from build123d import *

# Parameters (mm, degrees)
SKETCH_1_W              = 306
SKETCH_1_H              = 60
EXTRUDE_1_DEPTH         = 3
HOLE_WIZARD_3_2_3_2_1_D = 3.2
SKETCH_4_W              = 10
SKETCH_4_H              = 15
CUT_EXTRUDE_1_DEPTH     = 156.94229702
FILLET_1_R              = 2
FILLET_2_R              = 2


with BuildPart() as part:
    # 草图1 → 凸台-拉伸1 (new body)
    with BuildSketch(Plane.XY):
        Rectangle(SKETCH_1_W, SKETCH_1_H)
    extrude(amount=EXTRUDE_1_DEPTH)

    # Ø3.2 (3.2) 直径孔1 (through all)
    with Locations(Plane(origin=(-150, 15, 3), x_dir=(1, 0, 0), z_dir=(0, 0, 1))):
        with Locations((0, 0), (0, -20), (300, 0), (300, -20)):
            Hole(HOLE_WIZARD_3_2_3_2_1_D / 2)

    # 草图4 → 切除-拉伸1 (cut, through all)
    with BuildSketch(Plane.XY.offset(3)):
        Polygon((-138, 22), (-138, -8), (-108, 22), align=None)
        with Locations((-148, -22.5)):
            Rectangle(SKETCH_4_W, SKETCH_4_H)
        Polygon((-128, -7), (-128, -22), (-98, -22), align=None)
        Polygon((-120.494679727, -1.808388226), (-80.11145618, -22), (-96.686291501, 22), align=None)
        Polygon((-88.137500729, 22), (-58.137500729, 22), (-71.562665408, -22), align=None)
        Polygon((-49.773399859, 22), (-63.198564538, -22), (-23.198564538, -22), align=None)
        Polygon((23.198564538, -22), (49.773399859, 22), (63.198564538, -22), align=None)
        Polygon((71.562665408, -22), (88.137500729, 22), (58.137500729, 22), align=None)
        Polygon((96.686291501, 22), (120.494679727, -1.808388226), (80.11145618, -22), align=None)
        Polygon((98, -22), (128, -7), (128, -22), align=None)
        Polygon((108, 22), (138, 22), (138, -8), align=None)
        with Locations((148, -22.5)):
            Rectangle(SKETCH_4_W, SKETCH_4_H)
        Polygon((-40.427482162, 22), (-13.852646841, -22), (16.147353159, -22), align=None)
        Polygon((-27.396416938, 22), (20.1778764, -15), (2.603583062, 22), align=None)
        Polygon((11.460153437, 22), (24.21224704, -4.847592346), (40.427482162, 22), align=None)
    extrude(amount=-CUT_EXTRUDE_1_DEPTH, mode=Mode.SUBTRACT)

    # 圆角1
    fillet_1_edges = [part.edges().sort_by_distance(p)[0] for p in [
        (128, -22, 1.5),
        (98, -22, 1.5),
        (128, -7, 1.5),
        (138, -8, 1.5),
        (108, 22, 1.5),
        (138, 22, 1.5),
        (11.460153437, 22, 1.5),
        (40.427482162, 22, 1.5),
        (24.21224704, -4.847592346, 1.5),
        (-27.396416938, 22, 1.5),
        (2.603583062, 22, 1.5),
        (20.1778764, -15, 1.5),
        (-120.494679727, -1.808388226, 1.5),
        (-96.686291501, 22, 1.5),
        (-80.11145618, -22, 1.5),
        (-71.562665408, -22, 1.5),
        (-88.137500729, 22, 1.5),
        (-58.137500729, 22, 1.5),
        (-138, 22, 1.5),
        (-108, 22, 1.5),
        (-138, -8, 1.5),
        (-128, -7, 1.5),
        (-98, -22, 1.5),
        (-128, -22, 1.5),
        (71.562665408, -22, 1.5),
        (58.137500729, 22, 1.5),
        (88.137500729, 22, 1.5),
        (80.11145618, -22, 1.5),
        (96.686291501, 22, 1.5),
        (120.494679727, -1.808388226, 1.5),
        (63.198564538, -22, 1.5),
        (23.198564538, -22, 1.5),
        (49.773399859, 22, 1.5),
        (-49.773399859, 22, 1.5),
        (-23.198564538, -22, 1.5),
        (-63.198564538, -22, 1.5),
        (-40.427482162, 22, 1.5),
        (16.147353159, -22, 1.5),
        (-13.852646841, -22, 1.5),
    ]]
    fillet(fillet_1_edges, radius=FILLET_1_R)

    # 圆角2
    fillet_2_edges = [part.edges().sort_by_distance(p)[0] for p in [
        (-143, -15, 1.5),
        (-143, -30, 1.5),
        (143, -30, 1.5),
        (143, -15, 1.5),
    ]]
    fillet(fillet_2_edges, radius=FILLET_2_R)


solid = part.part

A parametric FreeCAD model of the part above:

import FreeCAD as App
import Part
import Sketcher

V = App.Vector
Q = App.Units.Quantity


def edges_at(feature, points):
    """Names of the edges that pass closest to the given points."""
    edges = feature.Shape.Edges
    near = lambda p: min(range(len(edges)), key=lambda i: edges[i].distToShape(Part.Vertex(*p))[0])
    return sorted({f"Edge{near(p) + 1}" for p in points})

doc = App.newDocument("Part")
body = doc.addObject("PartDesign::Body", "Body")

sketch1 = body.newObject("Sketcher::SketchObject", "Sketch")
sketch1.AttachmentSupport = (doc.getObject("XY_Plane"), [""])
sketch1.MapMode = "FlatFace"
sketch1.addGeometry([
    Part.LineSegment(V(-153, 30, 0), V(-153, -30, 0)),
    Part.LineSegment(V(-153, -30, 0), V(153, -30, 0)),
    Part.LineSegment(V(153, -30, 0), V(153, 30, 0)),
    Part.LineSegment(V(153, 30, 0), V(-153, 30, 0)),
], False)
sketch1.addConstraint([
    Sketcher.Constraint("Coincident", 0, 2, 1, 1),
    Sketcher.Constraint("Coincident", 1, 2, 2, 1),
    Sketcher.Constraint("Coincident", 2, 2, 3, 1),
    Sketcher.Constraint("Coincident", 3, 2, 0, 1),
    Sketcher.Constraint("Vertical", 0),
    Sketcher.Constraint("Horizontal", 1),
    Sketcher.Constraint("Vertical", 2),
    Sketcher.Constraint("Horizontal", 3),
    Sketcher.Constraint("Symmetric", 0, 2, 2, 2, -1, 1),
    Sketcher.Constraint("DistanceX", 1, 1, 1, 2, Q("306 mm")),
    Sketcher.Constraint("DistanceY", 0, 2, 0, 1, Q("60 mm")),
])
pad1 = body.newObject("PartDesign::Pad", "Pad")
pad1.Profile = sketch1
pad1.Length = 3

sketch2 = body.newObject("Sketcher::SketchObject", "Sketch001")
sketch2.AttachmentSupport = (doc.getObject("XY_Plane"), [""])
sketch2.MapMode = "FlatFace"
sketch2.AttachmentOffset = App.Placement(V(0, 0, 3), App.Rotation())
sketch2.addGeometry([
    Part.Circle(V(-150, 15, 0), V(0, 0, 1), 1.6),
    Part.Circle(V(-150, -5, 0), V(0, 0, 1), 1.6),
    Part.Circle(V(150, 15, 0), V(0, 0, 1), 1.6),
    Part.Circle(V(150, -5, 0), V(0, 0, 1), 1.6),
], False)
sketch2.addConstraint([
    Sketcher.Constraint("Equal", 0, 1),
    Sketcher.Constraint("Equal", 1, 2),
    Sketcher.Constraint("Equal", 2, 3),
    Sketcher.Constraint("Symmetric", 0, 3, 2, 3, -2),
    Sketcher.Constraint("Symmetric", 1, 3, 3, 3, -2),
    Sketcher.Constraint("Vertical", 0, 3, 1, 3),
    Sketcher.Constraint("Diameter", 0, Q("3.2 mm")),
    Sketcher.Constraint("DistanceX", 0, 3, -1, 1, Q("150 mm")),
    Sketcher.Constraint("DistanceY", -1, 1, 0, 3, Q("15 mm")),
    Sketcher.Constraint("DistanceY", 1, 3, -1, 1, Q("5 mm")),
])
doc.recompute()
hole = body.newObject("PartDesign::Hole", "Hole")
hole.Profile = sketch2
hole.ThreadType = "None"
hole.Diameter = 3.2
hole.DepthType = "ThroughAll"

sketch3 = body.newObject("Sketcher::SketchObject", "Sketch002")
sketch3.AttachmentSupport = (doc.getObject("XY_Plane"), [""])
sketch3.MapMode = "FlatFace"
sketch3.AttachmentOffset = App.Placement(V(0, 0, 3), App.Rotation())
sketch3.addGeometry([
    Part.LineSegment(V(-138, 22, 0), V(-138, -8, 0)),
    Part.LineSegment(V(-138, -8, 0), V(-108, 22, 0)),
    Part.LineSegment(V(-108, 22, 0), V(-138, 22, 0)),
    Part.LineSegment(V(-153, -15, 0), V(-153, -30, 0)),
    Part.LineSegment(V(-153, -30, 0), V(-143, -30, 0)),
    Part.LineSegment(V(-143, -30, 0), V(-143, -15, 0)),
    Part.LineSegment(V(-143, -15, 0), V(-153, -15, 0)),
    Part.LineSegment(V(-128, -7, 0), V(-128, -22, 0)),
    Part.LineSegment(V(-128, -22, 0), V(-98, -22, 0)),
    Part.LineSegment(V(-98, -22, 0), V(-128, -7, 0)),
    Part.LineSegment(V(-120, -2, 0), V(-80, -22, 0)),
    Part.LineSegment(V(-80, -22, 0), V(-97, 22, 0)),
    Part.LineSegment(V(-97, 22, 0), V(-120, -2, 0)),
    Part.LineSegment(V(-58, 22, 0), V(-88, 22, 0)),
    Part.LineSegment(V(-88, 22, 0), V(-72, -22, 0)),
    Part.LineSegment(V(-72, -22, 0), V(-58, 22, 0)),
    Part.LineSegment(V(-50, 22, 0), V(-63, -22, 0)),
    Part.LineSegment(V(-63, -22, 0), V(-23, -22, 0)),
    Part.LineSegment(V(-23, -22, 0), V(-50, 22, 0)),
    Part.LineSegment(V(50, 22, 0), V(23, -22, 0)),
    Part.LineSegment(V(23, -22, 0), V(63, -22, 0)),
    Part.LineSegment(V(63, -22, 0), V(50, 22, 0)),
    Part.LineSegment(V(72, -22, 0), V(88, 22, 0)),
    Part.LineSegment(V(88, 22, 0), V(58, 22, 0)),
    Part.LineSegment(V(58, 22, 0), V(72, -22, 0)),
    Part.LineSegment(V(120, -2, 0), V(97, 22, 0)),
    Part.LineSegment(V(97, 22, 0), V(80, -22, 0)),
    Part.LineSegment(V(80, -22, 0), V(120, -2, 0)),
    Part.LineSegment(V(128, -7, 0), V(98, -22, 0)),
    Part.LineSegment(V(98, -22, 0), V(128, -22, 0)),
    Part.LineSegment(V(128, -22, 0), V(128, -7, 0)),
    Part.LineSegment(V(138, 22, 0), V(108, 22, 0)),
    Part.LineSegment(V(108, 22, 0), V(138, -8, 0)),
    Part.LineSegment(V(138, -8, 0), V(138, 22, 0)),
    Part.LineSegment(V(143, -15, 0), V(143, -30, 0)),
    Part.LineSegment(V(143, -30, 0), V(153, -30, 0)),
    Part.LineSegment(V(153, -30, 0), V(153, -15, 0)),
    Part.LineSegment(V(153, -15, 0), V(143, -15, 0)),
    Part.LineSegment(V(-40, 22, 0), V(-14, -22, 0)),
    Part.LineSegment(V(-14, -22, 0), V(16, -22, 0)),
    Part.LineSegment(V(16, -22, 0), V(-40, 22, 0)),
    Part.LineSegment(V(-27, 22, 0), V(20, -15, 0)),
    Part.LineSegment(V(20, -15, 0), V(3, 22, 0)),
    Part.LineSegment(V(3, 22, 0), V(-27, 22, 0)),
    Part.LineSegment(V(11, 22, 0), V(24, -5, 0)),
    Part.LineSegment(V(24, -5, 0), V(40, 22, 0)),
    Part.LineSegment(V(40, 22, 0), V(11, 22, 0)),
], False)
sketch3.addConstraint([
    Sketcher.Constraint("Coincident", 0, 2, 1, 1),
    Sketcher.Constraint("Coincident", 1, 2, 2, 1),
    Sketcher.Constraint("Coincident", 2, 2, 0, 1),
    Sketcher.Constraint("Coincident", 3, 2, 4, 1),
    Sketcher.Constraint("Coincident", 4, 2, 5, 1),
    Sketcher.Constraint("Coincident", 5, 2, 6, 1),
    Sketcher.Constraint("Coincident", 6, 2, 3, 1),
    Sketcher.Constraint("Coincident", 7, 2, 8, 1),
    Sketcher.Constraint("Coincident", 8, 2, 9, 1),
    Sketcher.Constraint("Coincident", 9, 2, 7, 1),
    Sketcher.Constraint("Coincident", 10, 2, 11, 1),
    Sketcher.Constraint("Coincident", 11, 2, 12, 1),
    Sketcher.Constraint("Coincident", 12, 2, 10, 1),
    Sketcher.Constraint("Coincident", 13, 2, 14, 1),
    Sketcher.Constraint("Coincident", 14, 2, 15, 1),
    Sketcher.Constraint("Coincident", 15, 2, 13, 1),
    Sketcher.Constraint("Coincident", 16, 2, 17, 1),
    Sketcher.Constraint("Coincident", 17, 2, 18, 1),
    Sketcher.Constraint("Coincident", 18, 2, 16, 1),
    Sketcher.Constraint("Coincident", 19, 2, 20, 1),
    Sketcher.Constraint("Coincident", 20, 2, 21, 1),
    Sketcher.Constraint("Coincident", 21, 2, 19, 1),
    Sketcher.Constraint("Coincident", 22, 2, 23, 1),
    Sketcher.Constraint("Coincident", 23, 2, 24, 1),
    Sketcher.Constraint("Coincident", 24, 2, 22, 1),
    Sketcher.Constraint("Coincident", 25, 2, 26, 1),
    Sketcher.Constraint("Coincident", 26, 2, 27, 1),
    Sketcher.Constraint("Coincident", 27, 2, 25, 1),
    Sketcher.Constraint("Coincident", 28, 2, 29, 1),
    Sketcher.Constraint("Coincident", 29, 2, 30, 1),
    Sketcher.Constraint("Coincident", 30, 2, 28, 1),
    Sketcher.Constraint("Coincident", 31, 2, 32, 1),
    Sketcher.Constraint("Coincident", 32, 2, 33, 1),
    Sketcher.Constraint("Coincident", 33, 2, 31, 1),
    Sketcher.Constraint("Coincident", 34, 2, 35, 1),
    Sketcher.Constraint("Coincident", 35, 2, 36, 1),
    Sketcher.Constraint("Coincident", 36, 2, 37, 1),
    Sketcher.Constraint("Coincident", 37, 2, 34, 1),
    Sketcher.Constraint("Coincident", 38, 2, 39, 1),
    Sketcher.Constraint("Coincident", 39, 2, 40, 1),
    Sketcher.Constraint("Coincident", 40, 2, 38, 1),
    Sketcher.Constraint("Coincident", 41, 2, 42, 1),
    Sketcher.Constraint("Coincident", 42, 2, 43, 1),
    Sketcher.Constraint("Coincident", 43, 2, 41, 1),
    Sketcher.Constraint("Coincident", 44, 2, 45, 1),
    Sketcher.Constraint("Coincident", 45, 2, 46, 1),
    Sketcher.Constraint("Coincident", 46, 2, 44, 1),
    Sketcher.Constraint("Vertical", 0),
    Sketcher.Constraint("Horizontal", 2),
    Sketcher.Constraint("Vertical", 3),
    Sketcher.Constraint("Horizontal", 4),
    Sketcher.Constraint("Vertical", 5),
    Sketcher.Constraint("Horizontal", 6),
    Sketcher.Constraint("Vertical", 7),
    Sketcher.Constraint("Horizontal", 8),
    Sketcher.Constraint("Horizontal", 13),
    Sketcher.Constraint("Horizontal", 17),
    Sketcher.Constraint("Horizontal", 20),
    Sketcher.Constraint("Horizontal", 23),
    Sketcher.Constraint("Horizontal", 29),
    Sketcher.Constraint("Vertical", 30),
    Sketcher.Constraint("Horizontal", 31),
    Sketcher.Constraint("Vertical", 33),
    Sketcher.Constraint("Vertical", 34),
    Sketcher.Constraint("Horizontal", 35),
    Sketcher.Constraint("Vertical", 36),
    Sketcher.Constraint("Horizontal", 37),
    Sketcher.Constraint("Horizontal", 39),
    Sketcher.Constraint("Horizontal", 43),
    Sketcher.Constraint("Horizontal", 46),
    Sketcher.Constraint("Symmetric", 17, 2, 19, 2, -2),
    Sketcher.Constraint("Symmetric", 18, 2, 21, 2, -2),
    Sketcher.Constraint("Symmetric", 13, 2, 22, 2, -2),
    Sketcher.Constraint("Symmetric", 14, 2, 24, 2, -2),
    Sketcher.Constraint("Symmetric", 11, 2, 25, 2, -2),
    Sketcher.Constraint("Symmetric", 10, 2, 26, 2, -2),
    Sketcher.Constraint("Symmetric", 12, 2, 27, 2, -2),
    Sketcher.Constraint("Symmetric", 8, 2, 28, 2, -2),
    Sketcher.Constraint("Symmetric", 9, 2, 30, 2, -2),
    Sketcher.Constraint("Symmetric", 1, 2, 31, 2, -2),
    Sketcher.Constraint("Symmetric", 0, 2, 32, 2, -2),
    Sketcher.Constraint("Symmetric", 4, 2, 34, 2, -2),
    Sketcher.Constraint("Symmetric", 6, 2, 36, 2, -2),
    Sketcher.Constraint("Symmetric", 40, 2, 45, 2, -2),
    Sketcher.Constraint("Parallel", 9, 10),
    Sketcher.Constraint("Parallel", 1, 12),
    Sketcher.Constraint("Parallel", 11, 14),
    Sketcher.Constraint("Parallel", 15, 16),
    Sketcher.Constraint("Parallel", 21, 24),
    Sketcher.Constraint("Perpendicular", 12, 25),
    Sketcher.Constraint("Parallel", 18, 38),
    Sketcher.Constraint("Parallel", 40, 41),
    Sketcher.Constraint("Parallel", 42, 44),
    Sketcher.Constraint("Parallel", 19, 45),
    Sketcher.Constraint("Horizontal", 8, 2, 10, 2),
    Sketcher.Constraint("Horizontal", 2, 2, 11, 2),
    Sketcher.Constraint("Horizontal", 11, 2, 13, 2),
    Sketcher.Constraint("Horizontal", 10, 2, 14, 2),
    Sketcher.Constraint("Horizontal", 14, 2, 16, 2),
    Sketcher.Constraint("Horizontal", 15, 2, 18, 2),
    Sketcher.Constraint("Horizontal", 29, 2, 38, 2),
    Sketcher.Constraint("Horizontal", 33, 2, 40, 2),
    Sketcher.Constraint("Horizontal", 37, 2, 41, 2),
    Sketcher.Constraint("Horizontal", 40, 2, 42, 2),
    Sketcher.Constraint("Equal", 2, 8),
    Sketcher.Constraint("Equal", 8, 13),
    Sketcher.Constraint("Equal", 17, 20),
    Sketcher.Constraint("Equal", 31, 39),
    Sketcher.Constraint("Equal", 39, 43),
    Sketcher.Constraint("Equal", 5, 7),
    Sketcher.Constraint("DistanceX", 2, 2, 2, 1, Q("30 mm")),
    Sketcher.Constraint("DistanceX", 4, 1, 4, 2, Q("10 mm")),
    Sketcher.Constraint("DistanceX", 17, 1, 17, 2, Q("40 mm")),
    Sketcher.Constraint("DistanceY", 3, 2, 3, 1, Q("15 mm")),
    Sketcher.Constraint("DistanceX", 0, 2, -1, 1, Q("138 mm")),
    Sketcher.Constraint("DistanceY", 0, 2, -1, 1, Q("8 mm")),
    Sketcher.Constraint("DistanceX", 3, 2, -1, 1, Q("153 mm")),
    Sketcher.Constraint("DistanceY", 3, 2, -1, 1, Q("30 mm")),
    Sketcher.Constraint("DistanceX", 7, 2, -1, 1, Q("128 mm")),
    Sketcher.Constraint("DistanceY", 7, 2, -1, 1, Q("22 mm")),
    Sketcher.Constraint("Distance", 44, Q("29.722199 mm")),
    Sketcher.Constraint("DistanceX", 46, 2, 46, 1, Q("28.967329 mm")),
    Sketcher.Constraint("DistanceX", 13, 2, -1, 1, Q("88.137501 mm")),
    Sketcher.Constraint("DistanceX", 18, 2, -1, 1, Q("49.7734 mm")),
    Sketcher.Constraint("DistanceX", 42, 2, 45, 2, Q("37.823899 mm")),
    Sketcher.Constraint("DistanceX", 11, 2, -1, 1, Q("96.686292 mm")),
    Sketcher.Constraint("DistanceX", 38, 2, 19, 2, Q("37.051211 mm")),
])
pocket1 = body.newObject("PartDesign::Pocket", "Pocket")
pocket1.Profile = sketch3
pocket1.Type = "ThroughAll"
doc.recompute()

fillet = body.newObject("PartDesign::Fillet", "Fillet")
fillet.Base = (pocket1, edges_at(pocket1, [
    (128, -22, 1.5),
    (98, -22, 1.5),
    (128, -7, 1.5),
    (138, -8, 1.5),
    (108, 22, 1.5),
    (138, 22, 1.5),
    (11.46, 22, 1.5),
    (40.427, 22, 1.5),
    (24.212, -4.848, 1.5),
    (-27.396, 22, 1.5),
    (2.604, 22, 1.5),
    (20.178, -15, 1.5),
    (-120.495, -1.808, 1.5),
    (-96.686, 22, 1.5),
    (-80.111, -22, 1.5),
    (-71.563, -22, 1.5),
    (-88.138, 22, 1.5),
    (-58.138, 22, 1.5),
    (-138, 22, 1.5),
    (-108, 22, 1.5),
    (-138, -8, 1.5),
    (-128, -7, 1.5),
    (-98, -22, 1.5),
    (-128, -22, 1.5),
    (71.563, -22, 1.5),
    (58.138, 22, 1.5),
    (88.138, 22, 1.5),
    (80.111, -22, 1.5),
    (96.686, 22, 1.5),
    (120.495, -1.808, 1.5),
    (63.199, -22, 1.5),
    (23.199, -22, 1.5),
    (49.773, 22, 1.5),
    (-49.773, 22, 1.5),
    (-23.199, -22, 1.5),
    (-63.199, -22, 1.5),
    (-40.427, 22, 1.5),
    (16.147, -22, 1.5),
    (-13.853, -22, 1.5),
]))
fillet.Radius = 2
doc.recompute()

fillet2 = body.newObject("PartDesign::Fillet", "Fillet001")
fillet2.Base = (fillet, edges_at(fillet, [
    (-143, -15, 1.5),
    (-143, -30, 1.5),
    (143, -30, 1.5),
    (143, -15, 1.5),
]))
fillet2.Radius = 2

doc.recompute()
